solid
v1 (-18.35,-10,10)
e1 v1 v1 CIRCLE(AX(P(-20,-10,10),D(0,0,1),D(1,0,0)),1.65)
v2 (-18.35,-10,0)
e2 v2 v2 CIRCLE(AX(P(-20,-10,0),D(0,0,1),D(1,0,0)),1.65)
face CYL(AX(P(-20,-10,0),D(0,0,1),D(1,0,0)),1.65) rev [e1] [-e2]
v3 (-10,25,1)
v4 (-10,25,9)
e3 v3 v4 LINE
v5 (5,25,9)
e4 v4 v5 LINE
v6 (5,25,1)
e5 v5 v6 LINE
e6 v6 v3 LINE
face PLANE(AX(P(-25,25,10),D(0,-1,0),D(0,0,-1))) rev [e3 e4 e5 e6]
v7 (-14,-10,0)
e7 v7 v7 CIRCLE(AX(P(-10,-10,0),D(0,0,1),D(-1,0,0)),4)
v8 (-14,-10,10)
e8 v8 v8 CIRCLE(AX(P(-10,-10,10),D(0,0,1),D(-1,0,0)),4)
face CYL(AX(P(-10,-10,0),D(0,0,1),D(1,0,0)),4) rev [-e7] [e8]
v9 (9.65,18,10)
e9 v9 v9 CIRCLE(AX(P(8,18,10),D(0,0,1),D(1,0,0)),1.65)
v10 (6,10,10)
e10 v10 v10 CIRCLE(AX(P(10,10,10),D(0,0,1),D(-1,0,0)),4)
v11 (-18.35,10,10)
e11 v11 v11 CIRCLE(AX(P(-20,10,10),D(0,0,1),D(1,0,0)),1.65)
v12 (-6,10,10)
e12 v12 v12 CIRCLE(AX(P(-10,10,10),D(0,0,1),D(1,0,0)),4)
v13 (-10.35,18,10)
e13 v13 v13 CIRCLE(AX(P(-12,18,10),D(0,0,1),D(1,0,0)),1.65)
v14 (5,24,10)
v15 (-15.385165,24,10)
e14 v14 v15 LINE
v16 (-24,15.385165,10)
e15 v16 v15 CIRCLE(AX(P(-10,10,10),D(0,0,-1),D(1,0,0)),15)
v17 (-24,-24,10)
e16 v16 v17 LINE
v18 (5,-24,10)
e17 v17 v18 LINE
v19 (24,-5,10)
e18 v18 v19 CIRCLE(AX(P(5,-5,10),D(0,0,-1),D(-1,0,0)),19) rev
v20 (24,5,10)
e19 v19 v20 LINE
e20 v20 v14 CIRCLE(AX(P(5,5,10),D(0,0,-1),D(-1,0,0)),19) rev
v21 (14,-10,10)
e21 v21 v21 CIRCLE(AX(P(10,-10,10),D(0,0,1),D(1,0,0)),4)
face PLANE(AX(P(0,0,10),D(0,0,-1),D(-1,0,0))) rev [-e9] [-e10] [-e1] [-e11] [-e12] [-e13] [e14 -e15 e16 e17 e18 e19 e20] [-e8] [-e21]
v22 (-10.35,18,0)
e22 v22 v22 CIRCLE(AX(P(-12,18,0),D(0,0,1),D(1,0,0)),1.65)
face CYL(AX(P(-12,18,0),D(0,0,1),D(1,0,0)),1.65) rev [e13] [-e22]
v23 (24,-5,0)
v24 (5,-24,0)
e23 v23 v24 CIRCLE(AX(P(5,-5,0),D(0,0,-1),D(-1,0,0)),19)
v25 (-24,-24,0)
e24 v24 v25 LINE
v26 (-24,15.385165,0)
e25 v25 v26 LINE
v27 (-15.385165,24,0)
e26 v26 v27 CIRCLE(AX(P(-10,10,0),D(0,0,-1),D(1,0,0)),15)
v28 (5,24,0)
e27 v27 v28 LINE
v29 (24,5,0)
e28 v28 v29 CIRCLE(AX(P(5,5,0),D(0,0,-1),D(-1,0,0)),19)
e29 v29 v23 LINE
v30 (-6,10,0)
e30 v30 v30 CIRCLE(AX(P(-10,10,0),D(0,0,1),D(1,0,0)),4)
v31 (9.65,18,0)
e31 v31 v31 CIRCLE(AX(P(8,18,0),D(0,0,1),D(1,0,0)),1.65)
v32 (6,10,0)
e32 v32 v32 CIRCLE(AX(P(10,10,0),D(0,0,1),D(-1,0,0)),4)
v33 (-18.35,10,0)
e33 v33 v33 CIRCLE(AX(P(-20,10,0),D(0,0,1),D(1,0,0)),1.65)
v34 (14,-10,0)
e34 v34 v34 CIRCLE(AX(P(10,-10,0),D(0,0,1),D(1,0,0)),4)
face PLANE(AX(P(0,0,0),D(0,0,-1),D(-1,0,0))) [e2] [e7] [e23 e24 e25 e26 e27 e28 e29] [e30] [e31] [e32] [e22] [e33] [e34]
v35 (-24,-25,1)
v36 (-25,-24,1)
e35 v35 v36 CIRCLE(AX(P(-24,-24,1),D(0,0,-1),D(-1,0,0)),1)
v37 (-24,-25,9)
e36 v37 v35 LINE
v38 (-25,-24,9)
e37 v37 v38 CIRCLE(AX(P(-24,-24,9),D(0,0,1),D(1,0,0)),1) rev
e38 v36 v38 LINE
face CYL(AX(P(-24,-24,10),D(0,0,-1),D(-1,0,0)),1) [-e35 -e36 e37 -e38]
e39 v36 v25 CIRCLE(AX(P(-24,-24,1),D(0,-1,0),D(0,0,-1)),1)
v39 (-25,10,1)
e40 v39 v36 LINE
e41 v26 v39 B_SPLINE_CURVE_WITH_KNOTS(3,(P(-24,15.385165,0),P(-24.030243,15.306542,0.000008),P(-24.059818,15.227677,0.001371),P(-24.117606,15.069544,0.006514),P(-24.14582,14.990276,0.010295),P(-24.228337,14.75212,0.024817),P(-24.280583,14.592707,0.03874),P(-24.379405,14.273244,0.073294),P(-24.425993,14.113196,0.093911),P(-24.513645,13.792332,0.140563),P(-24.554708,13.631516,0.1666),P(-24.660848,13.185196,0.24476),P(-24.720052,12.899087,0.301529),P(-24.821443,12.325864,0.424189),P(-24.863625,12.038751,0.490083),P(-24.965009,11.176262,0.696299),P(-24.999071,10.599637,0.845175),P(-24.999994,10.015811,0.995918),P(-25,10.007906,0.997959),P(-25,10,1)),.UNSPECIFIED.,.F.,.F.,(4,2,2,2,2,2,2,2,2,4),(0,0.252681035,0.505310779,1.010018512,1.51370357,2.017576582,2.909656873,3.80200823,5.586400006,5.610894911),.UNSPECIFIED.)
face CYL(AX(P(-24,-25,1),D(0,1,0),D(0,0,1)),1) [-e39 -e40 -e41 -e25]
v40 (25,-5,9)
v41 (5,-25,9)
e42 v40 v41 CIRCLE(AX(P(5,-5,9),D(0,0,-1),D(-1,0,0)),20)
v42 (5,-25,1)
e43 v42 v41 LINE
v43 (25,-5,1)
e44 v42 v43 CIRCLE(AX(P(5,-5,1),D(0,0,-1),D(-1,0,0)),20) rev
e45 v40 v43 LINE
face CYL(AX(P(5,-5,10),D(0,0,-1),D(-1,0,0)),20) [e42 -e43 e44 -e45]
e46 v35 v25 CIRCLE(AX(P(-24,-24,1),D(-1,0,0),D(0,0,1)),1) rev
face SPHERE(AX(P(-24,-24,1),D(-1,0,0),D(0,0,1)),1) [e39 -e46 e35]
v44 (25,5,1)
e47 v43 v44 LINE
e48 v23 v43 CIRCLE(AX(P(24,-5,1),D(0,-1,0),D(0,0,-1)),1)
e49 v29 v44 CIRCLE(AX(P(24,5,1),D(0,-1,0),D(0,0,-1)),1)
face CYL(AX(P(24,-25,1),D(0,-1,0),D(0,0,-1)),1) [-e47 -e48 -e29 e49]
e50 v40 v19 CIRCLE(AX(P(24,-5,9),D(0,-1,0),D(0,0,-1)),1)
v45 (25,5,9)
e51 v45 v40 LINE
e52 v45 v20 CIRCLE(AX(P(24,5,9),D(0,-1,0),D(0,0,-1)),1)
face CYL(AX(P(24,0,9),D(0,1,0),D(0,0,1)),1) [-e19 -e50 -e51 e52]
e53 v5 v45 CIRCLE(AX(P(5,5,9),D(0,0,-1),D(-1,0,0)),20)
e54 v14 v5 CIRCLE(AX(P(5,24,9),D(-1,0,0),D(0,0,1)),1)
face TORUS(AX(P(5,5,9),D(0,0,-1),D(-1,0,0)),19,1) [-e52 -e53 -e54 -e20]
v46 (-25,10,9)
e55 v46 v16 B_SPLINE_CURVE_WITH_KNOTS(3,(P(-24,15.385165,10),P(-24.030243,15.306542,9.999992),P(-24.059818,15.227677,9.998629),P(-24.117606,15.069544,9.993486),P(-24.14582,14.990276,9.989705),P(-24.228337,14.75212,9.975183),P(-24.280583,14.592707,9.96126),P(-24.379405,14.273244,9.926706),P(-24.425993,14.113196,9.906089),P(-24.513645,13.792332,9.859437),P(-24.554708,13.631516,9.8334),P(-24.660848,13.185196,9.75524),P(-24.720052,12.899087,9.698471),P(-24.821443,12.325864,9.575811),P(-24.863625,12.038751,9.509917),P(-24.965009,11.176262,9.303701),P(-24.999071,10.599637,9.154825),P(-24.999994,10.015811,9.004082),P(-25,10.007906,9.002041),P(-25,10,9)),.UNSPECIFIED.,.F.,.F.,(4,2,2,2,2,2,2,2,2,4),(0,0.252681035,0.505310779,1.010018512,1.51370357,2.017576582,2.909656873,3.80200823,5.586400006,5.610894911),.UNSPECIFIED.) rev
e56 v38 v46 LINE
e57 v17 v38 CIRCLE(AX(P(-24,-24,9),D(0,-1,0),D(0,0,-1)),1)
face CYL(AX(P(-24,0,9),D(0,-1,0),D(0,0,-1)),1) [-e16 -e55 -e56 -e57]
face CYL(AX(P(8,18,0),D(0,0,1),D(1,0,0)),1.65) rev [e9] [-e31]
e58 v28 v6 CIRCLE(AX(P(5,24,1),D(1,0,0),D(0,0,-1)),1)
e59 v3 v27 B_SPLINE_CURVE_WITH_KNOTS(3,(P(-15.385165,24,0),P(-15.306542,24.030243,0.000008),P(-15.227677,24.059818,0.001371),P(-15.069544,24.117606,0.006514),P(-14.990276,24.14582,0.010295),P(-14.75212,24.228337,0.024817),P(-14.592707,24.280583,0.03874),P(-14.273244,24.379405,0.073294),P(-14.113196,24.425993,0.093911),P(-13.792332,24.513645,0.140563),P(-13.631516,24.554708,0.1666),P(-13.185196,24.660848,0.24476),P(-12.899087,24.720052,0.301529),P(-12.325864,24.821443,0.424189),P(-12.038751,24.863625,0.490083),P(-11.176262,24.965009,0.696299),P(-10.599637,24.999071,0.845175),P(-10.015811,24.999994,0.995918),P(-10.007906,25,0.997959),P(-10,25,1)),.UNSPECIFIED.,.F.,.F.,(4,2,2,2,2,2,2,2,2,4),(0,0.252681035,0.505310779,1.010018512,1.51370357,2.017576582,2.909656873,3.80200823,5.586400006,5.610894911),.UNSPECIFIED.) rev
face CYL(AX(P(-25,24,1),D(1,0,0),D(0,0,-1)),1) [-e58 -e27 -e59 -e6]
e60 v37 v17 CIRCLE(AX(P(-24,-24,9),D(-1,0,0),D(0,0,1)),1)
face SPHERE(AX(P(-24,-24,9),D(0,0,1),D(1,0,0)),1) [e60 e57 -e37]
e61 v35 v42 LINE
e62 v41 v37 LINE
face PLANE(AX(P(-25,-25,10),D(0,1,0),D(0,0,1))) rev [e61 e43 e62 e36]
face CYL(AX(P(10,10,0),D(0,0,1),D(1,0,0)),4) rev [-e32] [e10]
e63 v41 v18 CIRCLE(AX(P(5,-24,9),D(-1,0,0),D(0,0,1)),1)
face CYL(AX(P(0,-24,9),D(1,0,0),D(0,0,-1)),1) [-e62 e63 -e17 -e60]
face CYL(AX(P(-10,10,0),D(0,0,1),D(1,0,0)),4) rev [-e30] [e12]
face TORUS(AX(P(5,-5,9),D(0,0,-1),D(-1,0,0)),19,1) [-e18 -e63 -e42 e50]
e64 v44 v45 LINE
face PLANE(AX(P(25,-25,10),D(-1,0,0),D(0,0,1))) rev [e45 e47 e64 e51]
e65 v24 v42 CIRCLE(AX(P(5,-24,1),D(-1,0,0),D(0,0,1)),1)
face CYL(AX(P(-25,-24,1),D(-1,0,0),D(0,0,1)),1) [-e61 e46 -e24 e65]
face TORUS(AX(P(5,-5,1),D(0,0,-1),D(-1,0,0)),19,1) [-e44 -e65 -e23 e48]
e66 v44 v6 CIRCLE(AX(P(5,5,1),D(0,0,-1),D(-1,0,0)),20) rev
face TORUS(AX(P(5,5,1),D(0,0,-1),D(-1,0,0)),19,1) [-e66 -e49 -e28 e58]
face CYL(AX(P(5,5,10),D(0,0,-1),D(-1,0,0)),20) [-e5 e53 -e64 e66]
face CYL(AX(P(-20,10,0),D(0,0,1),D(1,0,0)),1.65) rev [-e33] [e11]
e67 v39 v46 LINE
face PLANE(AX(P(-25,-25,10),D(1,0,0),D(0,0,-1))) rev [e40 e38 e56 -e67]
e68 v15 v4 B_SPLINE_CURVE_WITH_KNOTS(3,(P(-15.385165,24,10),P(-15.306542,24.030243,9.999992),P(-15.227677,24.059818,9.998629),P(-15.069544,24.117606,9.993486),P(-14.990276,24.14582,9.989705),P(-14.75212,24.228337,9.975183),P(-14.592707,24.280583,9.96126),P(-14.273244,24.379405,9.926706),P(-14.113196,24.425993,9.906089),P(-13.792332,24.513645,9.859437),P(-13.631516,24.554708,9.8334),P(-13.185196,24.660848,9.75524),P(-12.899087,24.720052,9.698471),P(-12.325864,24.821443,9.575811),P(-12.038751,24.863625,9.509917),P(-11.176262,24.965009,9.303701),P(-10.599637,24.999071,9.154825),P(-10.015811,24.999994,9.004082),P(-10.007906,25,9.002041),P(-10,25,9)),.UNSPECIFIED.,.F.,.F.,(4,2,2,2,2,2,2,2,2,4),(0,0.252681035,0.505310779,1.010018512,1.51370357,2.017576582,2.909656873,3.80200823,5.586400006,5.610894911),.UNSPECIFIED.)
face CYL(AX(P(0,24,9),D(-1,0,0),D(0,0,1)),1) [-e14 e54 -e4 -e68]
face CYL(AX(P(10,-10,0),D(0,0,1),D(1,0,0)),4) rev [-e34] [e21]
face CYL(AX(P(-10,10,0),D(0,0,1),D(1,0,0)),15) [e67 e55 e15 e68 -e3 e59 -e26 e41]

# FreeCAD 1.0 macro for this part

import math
import FreeCAD as App
import Part
import Sketcher

V = App.Vector
Q = App.Units.Quantity


def edges_at(feature, points):
    """Names of the edges that pass closest to the given points."""
    edges = feature.Shape.Edges
    near = lambda p: min(range(len(edges)), key=lambda i: edges[i].distToShape(Part.Vertex(*p))[0])
    return sorted({f"Edge{near(p) + 1}" for p in points})


def add_polygon(sketch, points):
    """Adds a closed chain of lines whose ends are joined by coincident constraints."""
    first, n = sketch.GeometryCount, len(points)
    for a, b in zip(points, points[1:] + points[:1]):
        sketch.addGeometry(Part.LineSegment(App.Vector(*a, 0), App.Vector(*b, 0)), False)
    for i in range(n):
        sketch.addConstraint(Sketcher.Constraint("Coincident", first + i, 2, first + (i + 1) % n, 1))

doc = App.newDocument("Part")
body = doc.addObject("PartDesign::Body", "Body")

# Sketch on XY plane
sketch1 = body.newObject("Sketcher::SketchObject", "Sketch")
sketch1.AttachmentSupport = (doc.getObject("XY_Plane"), [""])
sketch1.MapMode = "FlatFace"
add_polygon(sketch1, [(-25, 25), (-25, -25), (25, -25), (25, 25)])  # lines 0-3
sketch1.addConstraint([
    Sketcher.Constraint("Vertical", 0),
    Sketcher.Constraint("Horizontal", 1),
    Sketcher.Constraint("Vertical", 2),
    Sketcher.Constraint("Horizontal", 3),
    Sketcher.Constraint("Symmetric", 0, 2, 2, 2, -1, 1),
    Sketcher.Constraint("Equal", 3, 0),
    Sketcher.Constraint("DistanceX", 1, 1, 1, 2, Q("50 mm")),
])
pad1 = body.newObject("PartDesign::Pad", "Pad")
pad1.Profile = sketch1
pad1.Length = 10
doc.recompute()

fillet = body.newObject("PartDesign::Fillet", "Fillet")
fillet.Base = (pad1, edges_at(pad1, [(25, -25, 5), (25, 25, 5)]))
fillet.Radius = 20
doc.recompute()

fillet2 = body.newObject("PartDesign::Fillet", "Fillet001")
fillet2.Base = (fillet, ["Edge1"])
fillet2.UseAllEdges = True
fillet2.Radius = 1

# Sketch on XY plane
sketch2 = body.newObject("Sketcher::SketchObject", "Sketch001")
sketch2.AttachmentSupport = (doc.getObject("XY_Plane"), [""])
sketch2.MapMode = "FlatFace"
sketch2.AttachmentOffset = App.Placement(V(0, 0, 10), App.Rotation())
sketch2.addGeometry([
    Part.Circle(V(-10, 10, 0), V(0, 0, 1), 4),
    Part.Circle(V(10, 10, 0), V(0, 0, 1), 4),
    Part.Circle(V(10, -10, 0), V(0, 0, 1), 4),
    Part.Circle(V(-10, -10, 0), V(0, 0, 1), 4),
], False)
sketch2.addConstraint([
    Sketcher.Constraint("Equal", 0, 1),
    Sketcher.Constraint("Equal", 1, 2),
    Sketcher.Constraint("Equal", 2, 3),
    Sketcher.Constraint("Symmetric", 0, 3, 2, 3, -1, 1),
    Sketcher.Constraint("Symmetric", 1, 3, 3, 3, -1, 1),
    Sketcher.Constraint("Symmetric", 0, 3, 1, 3, -2),
    Sketcher.Constraint("Diameter", 0, Q("8 mm")),
    Sketcher.Constraint("DistanceX", 0, 3, -1, 1, Q("10 mm")),
    Sketcher.Constraint("DistanceY", -1, 1, 0, 3, Q("10 mm")),
])
pocket1 = body.newObject("PartDesign::Pocket", "Pocket")
pocket1.Profile = sketch2
pocket1.Length = 10

# Sketch on XY plane
sketch3 = body.newObject("Sketcher::SketchObject", "Sketch002")
sketch3.AttachmentSupport = (doc.getObject("XY_Plane"), [""])
sketch3.MapMode = "FlatFace"
sketch3.AttachmentOffset = App.Placement(V(0, 0, 10), App.Rotation())
sketch3.addGeometry([
    Part.Circle(V(-20, -10, 0), V(0, 0, 1), 1.6),
    Part.Circle(V(-20, 10, 0), V(0, 0, 1), 1.6),
    Part.Circle(V(-12, 18, 0), V(0, 0, 1), 1.6),
    Part.Circle(V(8, 18, 0), V(0, 0, 1), 1.6),
], False)
sketch3.addConstraint([
    Sketcher.Constraint("Equal", 0, 1),
    Sketcher.Constraint("Equal", 1, 2),
    Sketcher.Constraint("Equal", 2, 3),
    Sketcher.Constraint("Symmetric", 0, 3, 1, 3, -1),
    Sketcher.Constraint("Horizontal", 2, 3, 3, 3),
    Sketcher.Constraint("Diameter", 0, Q("3.3 mm")),
    Sketcher.Constraint("DistanceX", 0, 3, -1, 1, Q("20 mm")),
    Sketcher.Constraint("DistanceY", 0, 3, -1, 1, Q("10 mm")),
    Sketcher.Constraint("DistanceX", 2, 3, -1, 1, Q("12 mm")),
    Sketcher.Constraint("DistanceY", -1, 1, 2, 3, Q("18 mm")),
    Sketcher.Constraint("DistanceX", -1, 1, 3, 3, Q("8 mm")),
])
pocket2 = body.newObject("PartDesign::Pocket", "Pocket001")
pocket2.Profile = sketch3
pocket2.Length = 10

# Sketch on XY plane
sketch4 = body.newObject("Sketcher::SketchObject", "Sketch003")
sketch4.AttachmentSupport = (doc.getObject("XY_Plane"), [""])
sketch4.MapMode = "FlatFace"
sketch4.AttachmentOffset = App.Placement(V(0, 0, 10), App.Rotation())
sketch4.addGeometry([
    Part.LineSegment(V(-25, 6.2, 0), V(-25, 10, 0)),
    Part.ArcOfCircle(Part.Circle(V(-10, 10, 0), V(0, 0, 1), 15), math.radians(90), math.radians(180)),
    Part.LineSegment(V(-10, 25, 0), V(-27.1, 25, 0)),
    Part.LineSegment(V(-27.1, 25, 0), V(-25, 6.2, 0)),
], False)
sketch4.addConstraint([
    Sketcher.Constraint("Tangent", 0, 2, 1, 2),
    Sketcher.Constraint("Tangent", 1, 1, 2, 1),
    Sketcher.Constraint("Coincident", 2, 2, 3, 1),
    Sketcher.Constraint("Coincident", 3, 2, 0, 1),
    Sketcher.Constraint("Vertical", 0),
    Sketcher.Constraint("Horizontal", 2),
    Sketcher.Constraint("Radius", 1, Q("15 mm")),
    Sketcher.Constraint("DistanceX", 1, 3, -1, 1, Q("10 mm")),
    Sketcher.Constraint("DistanceY", -1, 1, 1, 3, Q("10 mm")),
    Sketcher.Constraint("DistanceX", 2, 2, 2, 1, Q("17.089821 mm")),
    Sketcher.Constraint("DistanceY", 0, 1, 0, 2, Q("3.758539 mm")),
])
pocket3 = body.newObject("PartDesign::Pocket", "Pocket002")
pocket3.Profile = sketch4
pocket3.Length = 10

doc.recompute()
